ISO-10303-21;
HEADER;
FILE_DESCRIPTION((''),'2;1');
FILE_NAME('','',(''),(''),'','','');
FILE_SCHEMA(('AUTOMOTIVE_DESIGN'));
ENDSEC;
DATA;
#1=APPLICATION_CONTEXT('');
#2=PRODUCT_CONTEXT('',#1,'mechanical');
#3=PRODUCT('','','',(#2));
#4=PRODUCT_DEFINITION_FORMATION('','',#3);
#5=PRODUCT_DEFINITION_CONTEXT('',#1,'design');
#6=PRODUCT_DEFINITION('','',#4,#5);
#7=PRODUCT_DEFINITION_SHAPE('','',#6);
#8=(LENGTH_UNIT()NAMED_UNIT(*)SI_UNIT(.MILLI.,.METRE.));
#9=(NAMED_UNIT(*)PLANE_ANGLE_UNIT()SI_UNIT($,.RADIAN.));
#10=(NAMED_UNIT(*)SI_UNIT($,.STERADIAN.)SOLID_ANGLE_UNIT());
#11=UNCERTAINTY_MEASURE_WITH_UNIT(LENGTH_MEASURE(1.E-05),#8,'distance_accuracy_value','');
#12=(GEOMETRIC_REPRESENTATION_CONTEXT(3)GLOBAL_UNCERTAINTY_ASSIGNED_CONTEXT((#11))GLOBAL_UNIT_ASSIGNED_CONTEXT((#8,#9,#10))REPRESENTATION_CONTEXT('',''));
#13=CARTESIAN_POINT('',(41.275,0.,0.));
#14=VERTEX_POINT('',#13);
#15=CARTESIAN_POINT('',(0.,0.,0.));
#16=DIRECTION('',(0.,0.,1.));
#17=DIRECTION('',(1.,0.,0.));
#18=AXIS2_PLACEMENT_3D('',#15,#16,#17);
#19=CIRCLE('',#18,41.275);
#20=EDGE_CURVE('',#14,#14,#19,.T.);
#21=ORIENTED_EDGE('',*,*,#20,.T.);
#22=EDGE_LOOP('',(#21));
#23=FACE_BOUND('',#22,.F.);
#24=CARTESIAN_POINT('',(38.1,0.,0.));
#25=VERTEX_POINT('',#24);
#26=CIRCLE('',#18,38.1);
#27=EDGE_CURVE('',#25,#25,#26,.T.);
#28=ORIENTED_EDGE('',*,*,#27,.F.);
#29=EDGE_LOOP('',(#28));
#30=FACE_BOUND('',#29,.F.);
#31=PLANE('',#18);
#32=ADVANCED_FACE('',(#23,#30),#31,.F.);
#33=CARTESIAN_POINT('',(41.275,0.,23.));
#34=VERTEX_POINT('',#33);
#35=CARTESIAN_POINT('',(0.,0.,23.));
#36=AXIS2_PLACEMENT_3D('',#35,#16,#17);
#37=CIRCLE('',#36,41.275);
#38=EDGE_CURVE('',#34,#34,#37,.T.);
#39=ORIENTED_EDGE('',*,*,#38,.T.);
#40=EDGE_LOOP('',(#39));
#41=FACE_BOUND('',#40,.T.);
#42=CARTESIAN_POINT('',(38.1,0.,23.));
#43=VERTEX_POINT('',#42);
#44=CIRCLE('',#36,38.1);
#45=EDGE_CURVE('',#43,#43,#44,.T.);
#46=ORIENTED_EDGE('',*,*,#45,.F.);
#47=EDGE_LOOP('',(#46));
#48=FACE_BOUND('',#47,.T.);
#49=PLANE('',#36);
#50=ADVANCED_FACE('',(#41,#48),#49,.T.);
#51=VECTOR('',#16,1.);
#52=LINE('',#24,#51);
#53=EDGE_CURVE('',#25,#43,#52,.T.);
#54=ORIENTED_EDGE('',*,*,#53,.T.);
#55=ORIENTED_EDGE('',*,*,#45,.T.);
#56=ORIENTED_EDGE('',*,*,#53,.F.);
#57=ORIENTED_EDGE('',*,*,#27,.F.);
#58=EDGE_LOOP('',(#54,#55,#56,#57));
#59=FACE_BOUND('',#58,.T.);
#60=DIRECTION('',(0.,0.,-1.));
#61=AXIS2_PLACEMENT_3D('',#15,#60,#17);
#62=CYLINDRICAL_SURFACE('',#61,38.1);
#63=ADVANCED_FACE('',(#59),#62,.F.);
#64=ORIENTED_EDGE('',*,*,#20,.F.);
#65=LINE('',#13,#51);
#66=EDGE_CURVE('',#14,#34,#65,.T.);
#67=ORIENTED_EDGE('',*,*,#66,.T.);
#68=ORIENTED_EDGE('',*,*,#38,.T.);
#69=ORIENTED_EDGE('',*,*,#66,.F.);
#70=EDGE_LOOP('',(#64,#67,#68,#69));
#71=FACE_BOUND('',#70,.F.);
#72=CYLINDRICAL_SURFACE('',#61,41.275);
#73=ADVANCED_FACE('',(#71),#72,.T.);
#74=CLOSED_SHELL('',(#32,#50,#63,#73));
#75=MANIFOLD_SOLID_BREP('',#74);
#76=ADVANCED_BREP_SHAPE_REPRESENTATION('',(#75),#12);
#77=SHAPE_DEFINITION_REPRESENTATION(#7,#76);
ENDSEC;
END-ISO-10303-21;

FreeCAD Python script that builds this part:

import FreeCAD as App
import Part
import Sketcher

V = App.Vector
Q = App.Units.Quantity

doc = App.newDocument("Part")
body = doc.addObject("PartDesign::Body", "Body")

# Sketch on XY plane
sketch1 = body.newObject("Sketcher::SketchObject", "Sketch")
sketch1.AttachmentSupport = (doc.getObject("XY_Plane"), [""])
sketch1.MapMode = "FlatFace"
sketch1.addGeometry([
    Part.Circle(V(0, 0, 0), V(0, 0, 1), 41.275),
    Part.Circle(V(0, 0, 0), V(0, 0, 1), 38.1),
], False)
sketch1.addConstraint([
    Sketcher.Constraint("Coincident", 0, 3, -1, 1),
    Sketcher.Constraint("Coincident", 1, 3, -1, 1),
    Sketcher.Constraint("Diameter", 1, Q("3 in")),
    Sketcher.Constraint("Diameter", 0, Q("3.25 in")),
])
pad1 = body.newObject("PartDesign::Pad", "Pad")
pad1.Profile = sketch1
pad1.Length = Q("0.9055118 in")

doc.recompute()
